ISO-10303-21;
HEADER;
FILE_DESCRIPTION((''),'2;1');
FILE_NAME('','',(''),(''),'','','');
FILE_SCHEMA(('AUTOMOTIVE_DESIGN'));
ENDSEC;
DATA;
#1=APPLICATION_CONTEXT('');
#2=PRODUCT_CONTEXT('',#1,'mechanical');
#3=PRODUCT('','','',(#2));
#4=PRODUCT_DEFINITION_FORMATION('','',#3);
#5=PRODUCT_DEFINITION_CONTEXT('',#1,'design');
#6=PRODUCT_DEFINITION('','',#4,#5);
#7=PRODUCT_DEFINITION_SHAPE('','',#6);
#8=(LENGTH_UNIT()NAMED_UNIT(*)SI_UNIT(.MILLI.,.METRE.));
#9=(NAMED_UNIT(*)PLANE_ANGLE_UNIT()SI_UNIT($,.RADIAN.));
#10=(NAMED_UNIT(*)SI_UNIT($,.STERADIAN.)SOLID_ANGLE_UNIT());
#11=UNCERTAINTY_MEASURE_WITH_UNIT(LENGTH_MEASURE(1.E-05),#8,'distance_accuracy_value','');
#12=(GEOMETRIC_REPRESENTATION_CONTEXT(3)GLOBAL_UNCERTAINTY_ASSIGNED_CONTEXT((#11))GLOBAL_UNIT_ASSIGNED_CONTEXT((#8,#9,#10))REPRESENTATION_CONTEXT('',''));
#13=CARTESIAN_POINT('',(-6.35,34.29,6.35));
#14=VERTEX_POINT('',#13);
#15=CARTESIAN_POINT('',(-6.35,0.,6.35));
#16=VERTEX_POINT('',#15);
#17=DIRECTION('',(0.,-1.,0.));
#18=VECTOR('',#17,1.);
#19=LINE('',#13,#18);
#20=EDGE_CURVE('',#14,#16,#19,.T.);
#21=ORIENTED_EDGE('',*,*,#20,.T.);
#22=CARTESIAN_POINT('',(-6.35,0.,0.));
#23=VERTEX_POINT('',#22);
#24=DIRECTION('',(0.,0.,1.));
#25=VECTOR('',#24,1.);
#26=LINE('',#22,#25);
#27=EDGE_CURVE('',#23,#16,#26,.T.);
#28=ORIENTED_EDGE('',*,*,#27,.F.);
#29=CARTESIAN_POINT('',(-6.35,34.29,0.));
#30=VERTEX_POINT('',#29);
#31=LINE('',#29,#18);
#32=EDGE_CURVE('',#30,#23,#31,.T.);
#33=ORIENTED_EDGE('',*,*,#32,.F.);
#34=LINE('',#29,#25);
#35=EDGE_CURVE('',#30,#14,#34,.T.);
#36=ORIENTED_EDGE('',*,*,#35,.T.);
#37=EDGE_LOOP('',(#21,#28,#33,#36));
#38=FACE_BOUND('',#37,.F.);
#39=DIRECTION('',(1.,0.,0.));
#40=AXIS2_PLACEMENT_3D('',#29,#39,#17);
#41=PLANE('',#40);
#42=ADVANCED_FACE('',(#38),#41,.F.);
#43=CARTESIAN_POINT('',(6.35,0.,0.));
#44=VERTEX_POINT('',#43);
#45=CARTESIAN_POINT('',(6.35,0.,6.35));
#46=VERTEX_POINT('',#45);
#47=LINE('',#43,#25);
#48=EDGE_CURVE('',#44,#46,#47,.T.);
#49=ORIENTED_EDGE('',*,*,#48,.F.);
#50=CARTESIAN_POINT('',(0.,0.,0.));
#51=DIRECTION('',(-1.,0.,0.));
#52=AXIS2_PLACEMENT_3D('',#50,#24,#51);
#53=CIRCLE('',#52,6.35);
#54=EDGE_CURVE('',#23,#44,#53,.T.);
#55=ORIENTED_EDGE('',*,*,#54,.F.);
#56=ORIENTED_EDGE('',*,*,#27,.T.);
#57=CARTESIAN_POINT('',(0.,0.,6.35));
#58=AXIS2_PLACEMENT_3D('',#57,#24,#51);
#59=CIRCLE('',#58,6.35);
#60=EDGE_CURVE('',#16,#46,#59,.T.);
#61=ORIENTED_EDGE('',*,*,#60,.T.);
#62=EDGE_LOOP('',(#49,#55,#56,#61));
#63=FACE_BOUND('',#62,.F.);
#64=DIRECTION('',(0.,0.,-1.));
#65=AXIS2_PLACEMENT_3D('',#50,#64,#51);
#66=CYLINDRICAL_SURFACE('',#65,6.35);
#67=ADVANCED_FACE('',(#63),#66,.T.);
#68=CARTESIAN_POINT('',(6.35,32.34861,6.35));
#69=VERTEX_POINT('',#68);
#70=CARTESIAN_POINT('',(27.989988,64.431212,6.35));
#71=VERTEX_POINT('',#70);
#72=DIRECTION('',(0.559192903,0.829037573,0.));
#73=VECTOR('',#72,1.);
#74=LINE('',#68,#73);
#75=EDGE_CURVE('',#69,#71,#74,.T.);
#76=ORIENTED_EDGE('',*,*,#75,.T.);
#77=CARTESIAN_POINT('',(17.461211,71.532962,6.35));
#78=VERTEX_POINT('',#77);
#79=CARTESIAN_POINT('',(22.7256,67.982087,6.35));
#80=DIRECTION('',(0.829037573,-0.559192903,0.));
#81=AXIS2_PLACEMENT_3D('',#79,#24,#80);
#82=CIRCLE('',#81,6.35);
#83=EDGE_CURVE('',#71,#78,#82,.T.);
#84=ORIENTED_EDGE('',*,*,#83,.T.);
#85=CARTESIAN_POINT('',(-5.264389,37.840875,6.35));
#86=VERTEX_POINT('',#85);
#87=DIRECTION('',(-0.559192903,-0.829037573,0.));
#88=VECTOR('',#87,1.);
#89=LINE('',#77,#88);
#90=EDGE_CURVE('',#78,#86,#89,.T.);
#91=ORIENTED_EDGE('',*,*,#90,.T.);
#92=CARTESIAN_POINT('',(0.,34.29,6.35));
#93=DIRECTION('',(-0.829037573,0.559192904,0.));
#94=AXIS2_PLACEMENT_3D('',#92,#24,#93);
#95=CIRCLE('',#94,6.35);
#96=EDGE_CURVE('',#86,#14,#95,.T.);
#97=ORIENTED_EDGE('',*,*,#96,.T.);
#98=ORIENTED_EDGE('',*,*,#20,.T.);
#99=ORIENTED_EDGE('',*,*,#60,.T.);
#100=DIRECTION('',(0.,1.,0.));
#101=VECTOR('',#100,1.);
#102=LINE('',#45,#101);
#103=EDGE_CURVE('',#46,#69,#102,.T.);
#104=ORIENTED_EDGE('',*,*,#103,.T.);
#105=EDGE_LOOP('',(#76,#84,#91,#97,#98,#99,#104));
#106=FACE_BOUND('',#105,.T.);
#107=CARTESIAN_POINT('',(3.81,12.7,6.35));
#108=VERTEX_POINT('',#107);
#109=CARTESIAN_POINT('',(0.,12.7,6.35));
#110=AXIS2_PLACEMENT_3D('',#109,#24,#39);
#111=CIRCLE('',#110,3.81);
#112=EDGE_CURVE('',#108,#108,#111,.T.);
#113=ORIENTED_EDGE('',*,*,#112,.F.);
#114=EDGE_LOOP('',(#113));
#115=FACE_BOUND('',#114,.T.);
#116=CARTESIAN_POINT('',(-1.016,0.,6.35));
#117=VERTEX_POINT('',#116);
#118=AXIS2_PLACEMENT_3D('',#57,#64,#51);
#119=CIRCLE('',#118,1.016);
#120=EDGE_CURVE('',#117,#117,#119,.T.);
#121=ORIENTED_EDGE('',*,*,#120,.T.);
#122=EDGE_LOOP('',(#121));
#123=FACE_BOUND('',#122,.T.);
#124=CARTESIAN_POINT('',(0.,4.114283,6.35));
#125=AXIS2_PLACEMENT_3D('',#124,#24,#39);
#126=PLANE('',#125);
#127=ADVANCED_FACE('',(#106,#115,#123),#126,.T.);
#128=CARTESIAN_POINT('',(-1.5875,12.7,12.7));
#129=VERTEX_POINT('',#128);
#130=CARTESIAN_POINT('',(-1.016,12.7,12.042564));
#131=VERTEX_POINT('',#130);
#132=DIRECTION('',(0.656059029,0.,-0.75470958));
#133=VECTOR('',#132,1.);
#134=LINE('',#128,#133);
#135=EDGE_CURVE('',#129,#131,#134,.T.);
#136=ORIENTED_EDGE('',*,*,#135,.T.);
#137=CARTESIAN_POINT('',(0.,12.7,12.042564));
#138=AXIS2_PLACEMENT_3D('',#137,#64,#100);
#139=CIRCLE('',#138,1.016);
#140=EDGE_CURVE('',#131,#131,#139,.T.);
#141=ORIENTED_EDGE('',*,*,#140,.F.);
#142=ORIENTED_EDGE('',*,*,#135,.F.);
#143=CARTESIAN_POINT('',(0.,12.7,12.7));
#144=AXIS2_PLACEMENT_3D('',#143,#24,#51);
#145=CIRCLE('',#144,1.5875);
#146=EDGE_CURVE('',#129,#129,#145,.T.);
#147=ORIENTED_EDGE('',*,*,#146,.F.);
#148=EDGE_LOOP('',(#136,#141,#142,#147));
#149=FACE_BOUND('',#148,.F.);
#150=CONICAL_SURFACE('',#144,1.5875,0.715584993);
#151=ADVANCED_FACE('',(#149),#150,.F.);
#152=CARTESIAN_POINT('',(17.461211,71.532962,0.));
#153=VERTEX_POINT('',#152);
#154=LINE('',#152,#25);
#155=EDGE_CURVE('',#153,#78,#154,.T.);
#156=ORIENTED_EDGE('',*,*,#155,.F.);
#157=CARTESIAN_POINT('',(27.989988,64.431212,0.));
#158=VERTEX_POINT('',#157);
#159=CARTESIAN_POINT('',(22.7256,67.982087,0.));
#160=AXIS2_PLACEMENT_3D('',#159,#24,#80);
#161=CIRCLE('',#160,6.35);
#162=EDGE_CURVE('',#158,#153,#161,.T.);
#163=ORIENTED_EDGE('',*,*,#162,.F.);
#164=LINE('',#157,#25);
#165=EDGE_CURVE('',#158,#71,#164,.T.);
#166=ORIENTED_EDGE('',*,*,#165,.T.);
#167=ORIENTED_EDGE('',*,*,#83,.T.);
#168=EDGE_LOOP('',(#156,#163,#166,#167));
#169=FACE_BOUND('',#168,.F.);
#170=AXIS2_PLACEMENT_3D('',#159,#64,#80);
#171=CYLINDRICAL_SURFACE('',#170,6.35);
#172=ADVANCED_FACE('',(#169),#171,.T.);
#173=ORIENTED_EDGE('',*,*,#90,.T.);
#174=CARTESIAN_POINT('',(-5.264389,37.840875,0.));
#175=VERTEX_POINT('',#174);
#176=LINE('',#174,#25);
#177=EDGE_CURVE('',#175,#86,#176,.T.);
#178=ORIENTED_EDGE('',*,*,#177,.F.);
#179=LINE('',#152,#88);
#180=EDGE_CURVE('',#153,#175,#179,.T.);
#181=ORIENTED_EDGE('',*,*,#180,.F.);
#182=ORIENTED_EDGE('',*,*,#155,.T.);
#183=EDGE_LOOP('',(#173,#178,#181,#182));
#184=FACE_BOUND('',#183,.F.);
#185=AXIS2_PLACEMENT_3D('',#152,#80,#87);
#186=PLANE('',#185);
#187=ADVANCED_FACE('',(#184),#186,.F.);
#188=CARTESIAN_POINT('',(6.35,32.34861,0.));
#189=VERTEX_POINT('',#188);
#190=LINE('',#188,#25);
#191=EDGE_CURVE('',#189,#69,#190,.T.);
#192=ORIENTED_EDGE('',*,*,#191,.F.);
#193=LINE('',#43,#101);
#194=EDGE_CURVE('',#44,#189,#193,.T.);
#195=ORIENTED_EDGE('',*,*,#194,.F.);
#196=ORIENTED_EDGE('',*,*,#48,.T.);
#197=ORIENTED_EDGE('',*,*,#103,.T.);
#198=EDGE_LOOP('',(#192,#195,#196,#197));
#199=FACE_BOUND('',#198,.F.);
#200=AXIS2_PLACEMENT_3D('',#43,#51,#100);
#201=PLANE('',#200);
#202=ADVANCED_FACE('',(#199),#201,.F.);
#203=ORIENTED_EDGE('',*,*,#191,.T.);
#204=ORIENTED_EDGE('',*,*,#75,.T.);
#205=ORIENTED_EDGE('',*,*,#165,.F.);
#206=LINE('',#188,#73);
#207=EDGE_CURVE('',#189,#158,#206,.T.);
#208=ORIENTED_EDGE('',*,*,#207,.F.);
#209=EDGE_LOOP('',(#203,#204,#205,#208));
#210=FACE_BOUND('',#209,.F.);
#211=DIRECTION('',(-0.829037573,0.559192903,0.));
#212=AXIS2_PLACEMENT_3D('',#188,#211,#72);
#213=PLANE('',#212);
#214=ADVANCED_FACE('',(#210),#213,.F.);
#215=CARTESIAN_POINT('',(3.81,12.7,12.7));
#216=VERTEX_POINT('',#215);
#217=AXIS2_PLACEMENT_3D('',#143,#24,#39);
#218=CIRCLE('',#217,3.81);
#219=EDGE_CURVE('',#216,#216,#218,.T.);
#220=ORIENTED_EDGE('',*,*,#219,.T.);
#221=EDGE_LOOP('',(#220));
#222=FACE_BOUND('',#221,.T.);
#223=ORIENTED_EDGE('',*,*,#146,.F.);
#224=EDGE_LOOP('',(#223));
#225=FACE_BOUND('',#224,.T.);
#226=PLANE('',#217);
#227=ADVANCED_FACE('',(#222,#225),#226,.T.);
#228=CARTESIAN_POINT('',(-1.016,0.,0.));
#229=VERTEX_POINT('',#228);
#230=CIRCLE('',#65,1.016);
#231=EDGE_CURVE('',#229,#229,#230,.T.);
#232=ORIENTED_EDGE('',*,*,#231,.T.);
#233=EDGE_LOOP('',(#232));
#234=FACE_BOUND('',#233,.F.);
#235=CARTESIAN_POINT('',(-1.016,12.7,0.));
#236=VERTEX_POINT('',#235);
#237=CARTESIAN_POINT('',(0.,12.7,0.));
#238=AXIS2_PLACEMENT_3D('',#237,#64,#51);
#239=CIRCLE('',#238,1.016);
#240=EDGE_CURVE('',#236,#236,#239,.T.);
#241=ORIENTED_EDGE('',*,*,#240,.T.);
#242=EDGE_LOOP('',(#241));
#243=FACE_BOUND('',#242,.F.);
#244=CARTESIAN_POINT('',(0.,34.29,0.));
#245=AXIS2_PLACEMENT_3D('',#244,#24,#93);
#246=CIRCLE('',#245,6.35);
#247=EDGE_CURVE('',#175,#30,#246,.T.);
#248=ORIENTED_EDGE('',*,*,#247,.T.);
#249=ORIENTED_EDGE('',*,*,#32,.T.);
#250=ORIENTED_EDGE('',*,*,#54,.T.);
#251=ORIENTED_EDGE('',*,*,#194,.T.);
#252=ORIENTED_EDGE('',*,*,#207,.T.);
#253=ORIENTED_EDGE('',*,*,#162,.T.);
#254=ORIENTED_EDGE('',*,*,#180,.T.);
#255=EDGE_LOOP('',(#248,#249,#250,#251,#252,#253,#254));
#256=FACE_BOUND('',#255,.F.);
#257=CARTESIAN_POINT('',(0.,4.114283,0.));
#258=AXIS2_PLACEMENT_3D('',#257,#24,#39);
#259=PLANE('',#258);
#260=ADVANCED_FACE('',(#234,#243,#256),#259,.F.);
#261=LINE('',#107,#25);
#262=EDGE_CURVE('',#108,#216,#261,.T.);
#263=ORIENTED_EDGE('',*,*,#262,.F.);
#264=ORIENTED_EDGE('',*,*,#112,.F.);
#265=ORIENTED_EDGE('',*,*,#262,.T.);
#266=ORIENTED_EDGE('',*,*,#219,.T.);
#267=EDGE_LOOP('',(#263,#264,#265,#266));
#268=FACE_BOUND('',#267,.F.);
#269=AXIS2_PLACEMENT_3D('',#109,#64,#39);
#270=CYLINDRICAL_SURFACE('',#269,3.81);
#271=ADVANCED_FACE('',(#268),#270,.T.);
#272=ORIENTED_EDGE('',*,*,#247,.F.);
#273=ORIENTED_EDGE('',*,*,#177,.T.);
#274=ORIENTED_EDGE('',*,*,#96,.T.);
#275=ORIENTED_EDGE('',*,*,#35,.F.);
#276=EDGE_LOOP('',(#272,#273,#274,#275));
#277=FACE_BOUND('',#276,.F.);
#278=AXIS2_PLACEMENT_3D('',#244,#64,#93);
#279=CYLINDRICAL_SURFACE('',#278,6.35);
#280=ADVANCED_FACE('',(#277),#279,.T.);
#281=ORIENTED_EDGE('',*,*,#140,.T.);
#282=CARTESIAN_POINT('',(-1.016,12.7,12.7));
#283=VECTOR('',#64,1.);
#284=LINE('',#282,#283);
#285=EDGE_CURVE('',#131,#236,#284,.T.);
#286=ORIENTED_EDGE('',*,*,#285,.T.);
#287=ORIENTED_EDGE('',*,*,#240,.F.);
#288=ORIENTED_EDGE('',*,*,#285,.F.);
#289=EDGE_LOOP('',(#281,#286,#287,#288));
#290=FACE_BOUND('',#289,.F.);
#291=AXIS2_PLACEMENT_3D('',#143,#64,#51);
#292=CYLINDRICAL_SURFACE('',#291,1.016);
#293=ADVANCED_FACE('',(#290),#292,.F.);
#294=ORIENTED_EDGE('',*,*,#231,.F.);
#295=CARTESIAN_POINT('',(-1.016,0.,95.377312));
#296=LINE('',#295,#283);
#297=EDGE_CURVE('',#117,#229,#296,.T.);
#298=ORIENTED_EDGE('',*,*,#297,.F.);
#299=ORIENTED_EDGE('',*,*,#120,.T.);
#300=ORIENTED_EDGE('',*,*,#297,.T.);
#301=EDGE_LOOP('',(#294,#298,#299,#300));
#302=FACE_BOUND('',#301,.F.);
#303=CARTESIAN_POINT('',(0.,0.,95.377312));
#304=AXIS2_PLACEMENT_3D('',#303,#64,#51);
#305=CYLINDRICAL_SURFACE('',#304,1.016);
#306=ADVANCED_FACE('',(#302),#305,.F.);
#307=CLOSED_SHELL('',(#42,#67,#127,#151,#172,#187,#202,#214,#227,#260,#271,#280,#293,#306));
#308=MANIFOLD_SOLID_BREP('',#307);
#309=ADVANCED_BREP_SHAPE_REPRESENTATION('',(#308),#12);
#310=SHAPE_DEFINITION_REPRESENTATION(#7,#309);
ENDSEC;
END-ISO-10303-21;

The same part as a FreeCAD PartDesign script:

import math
import FreeCAD as App
import Part
import Sketcher
from FreeCAD import Vector
Q = App.Units.Quantity

doc = App.newDocument("Part")
body = doc.addObject("PartDesign::Body", "Body")

# Sketch on XY plane
sketch1 = doc.addObject("Sketcher::SketchObject", "Sketch")
body.addObject(sketch1)
sketch1.AttachmentSupport = (doc.XY_Plane, [""])
sketch1.MapMode = "FlatFace"
sketch1.addGeometry(Part.LineSegment(Vector(6.3, 0, 0), Vector(6.3, 32.3, 0)), False)
sketch1.addGeometry(Part.LineSegment(Vector(6.3, 32.3, 0), Vector(28, 64.4, 0)), False)
sketch1.addGeometry(Part.ArcOfCircle(Part.Circle(Vector(22.7, 68, 0), Vector(0, 0, 1), 6.3), math.radians(-34), math.radians(146)), False)
sketch1.addGeometry(Part.LineSegment(Vector(17.5, 71.5, 0), Vector(-5.3, 37.8, 0)), False)
sketch1.addGeometry(Part.ArcOfCircle(Part.Circle(Vector(0, 34.3, 0), Vector(0, 0, 1), 6.3), math.radians(146), math.radians(180)), False)
sketch1.addGeometry(Part.LineSegment(Vector(-6.3, 34.3, 0), Vector(-6.3, 0, 0)), False)
sketch1.addGeometry(Part.ArcOfCircle(Part.Circle(Vector(0, 0, 0), Vector(0, 0, 1), 6.3), math.radians(180), math.radians(360)), False)
sketch1.addConstraint(Sketcher.Constraint("Coincident", 0, 2, 1, 1))
sketch1.addConstraint(Sketcher.Constraint("Tangent", 1, 2, 2, 1))
sketch1.addConstraint(Sketcher.Constraint("Tangent", 2, 2, 3, 1))
sketch1.addConstraint(Sketcher.Constraint("Tangent", 3, 2, 4, 1))
sketch1.addConstraint(Sketcher.Constraint("Tangent", 4, 2, 5, 1))
sketch1.addConstraint(Sketcher.Constraint("Tangent", 5, 2, 6, 1))
sketch1.addConstraint(Sketcher.Constraint("Tangent", 6, 2, 0, 1))
sketch1.addConstraint(Sketcher.Constraint("Vertical", 0))
sketch1.addConstraint(Sketcher.Constraint("Vertical", 5))
sketch1.addConstraint(Sketcher.Constraint("Coincident", 6, 3, -1, 1))
sketch1.addConstraint(Sketcher.Constraint("Equal", 2, 4))
sketch1.addConstraint(Sketcher.Constraint("Equal", 4, 6))
sketch1.addConstraint(Sketcher.Constraint("Parallel", 1, 3))
sketch1.addConstraint(Sketcher.Constraint("Radius", 2, Q("0.25 in")))
sketch1.addConstraint(Sketcher.Constraint("Angle", 1, Q("56 deg")))
sketch1.addConstraint(Sketcher.Constraint("Distance", 3, Q("1.6 in")))
sketch1.addConstraint(Sketcher.Constraint("DistanceY", 5, 2, 5, 1, Q("1.35 in")))
pad1 = doc.addObject("PartDesign::Pad", "Pad")
body.addObject(pad1)
pad1.Profile = sketch1
pad1.Length = Q("0.25 in")

# Sketch on XY plane
sketch2 = doc.addObject("Sketcher::SketchObject", "Sketch001")
body.addObject(sketch2)
sketch2.AttachmentSupport = (doc.XY_Plane, [""])
sketch2.MapMode = "FlatFace"
sketch2.AttachmentOffset = App.Placement(Vector(0, 0, 0.25 * 25.4), App.Rotation())
sketch2.addGeometry(Part.Circle(Vector(0, 12.7, 0), Vector(0, 0, 1), 3.8), False)
sketch2.addConstraint(Sketcher.Constraint("PointOnObject", 0, 3, -2))
sketch2.addConstraint(Sketcher.Constraint("Diameter", 0, Q("0.3 in")))
sketch2.addConstraint(Sketcher.Constraint("DistanceY", -1, 1, 0, 3, Q("0.5 in")))
pad2 = doc.addObject("PartDesign::Pad", "Pad001")
body.addObject(pad2)
pad2.Profile = sketch2
pad2.Length = Q("0.25 in")

# Sketch on XY plane
sketch3 = doc.addObject("Sketcher::SketchObject", "Sketch002")
body.addObject(sketch3)
sketch3.AttachmentSupport = (doc.XY_Plane, [""])
sketch3.MapMode = "FlatFace"
sketch3.AttachmentOffset = App.Placement(Vector(0, 0, 0.5 * 25.4), App.Rotation())
sketch3.addGeometry(Part.Circle(Vector(0, 12.7, 0), Vector(0, 0, 1), 1), False)
sketch3.addConstraint(Sketcher.Constraint("PointOnObject", 0, 3, -2))
sketch3.addConstraint(Sketcher.Constraint("Diameter", 0, Q("0.08 in")))
sketch3.addConstraint(Sketcher.Constraint("DistanceY", -1, 1, 0, 3, Q("0.5 in")))
doc.recompute()
hole = doc.addObject("PartDesign::Hole", "Hole")
body.addObject(hole)
hole.Profile = sketch3
hole.ThreadType = "None"
hole.Diameter = Q("0.08 in")
hole.DepthType = "ThroughAll"
hole.HoleCutType = "Countersink"
hole.HoleCutDiameter = Q("0.125 in")
hole.HoleCutCountersinkAngle = 82

# Sketch on XY plane
sketch4 = doc.addObject("Sketcher::SketchObject", "Sketch003")
body.addObject(sketch4)
sketch4.AttachmentSupport = (doc.XY_Plane, [""])
sketch4.MapMode = "FlatFace"
sketch4.AttachmentOffset = App.Placement(Vector(0, 0, 0.25 * 25.4), App.Rotation())
sketch4.addGeometry(Part.Circle(Vector(0, 0, 0), Vector(0, 0, 1), 1), False)
sketch4.addConstraint(Sketcher.Constraint("Coincident", 0, 3, -1, 1))
sketch4.addConstraint(Sketcher.Constraint("Diameter", 0, Q("0.08 in")))
doc.recompute()
hole2 = doc.addObject("PartDesign::Hole", "Hole001")
body.addObject(hole2)
hole2.Profile = sketch4
hole2.ThreadType = "None"
hole2.Diameter = Q("0.08 in")
hole2.DepthType = "ThroughAll"

doc.recompute()
